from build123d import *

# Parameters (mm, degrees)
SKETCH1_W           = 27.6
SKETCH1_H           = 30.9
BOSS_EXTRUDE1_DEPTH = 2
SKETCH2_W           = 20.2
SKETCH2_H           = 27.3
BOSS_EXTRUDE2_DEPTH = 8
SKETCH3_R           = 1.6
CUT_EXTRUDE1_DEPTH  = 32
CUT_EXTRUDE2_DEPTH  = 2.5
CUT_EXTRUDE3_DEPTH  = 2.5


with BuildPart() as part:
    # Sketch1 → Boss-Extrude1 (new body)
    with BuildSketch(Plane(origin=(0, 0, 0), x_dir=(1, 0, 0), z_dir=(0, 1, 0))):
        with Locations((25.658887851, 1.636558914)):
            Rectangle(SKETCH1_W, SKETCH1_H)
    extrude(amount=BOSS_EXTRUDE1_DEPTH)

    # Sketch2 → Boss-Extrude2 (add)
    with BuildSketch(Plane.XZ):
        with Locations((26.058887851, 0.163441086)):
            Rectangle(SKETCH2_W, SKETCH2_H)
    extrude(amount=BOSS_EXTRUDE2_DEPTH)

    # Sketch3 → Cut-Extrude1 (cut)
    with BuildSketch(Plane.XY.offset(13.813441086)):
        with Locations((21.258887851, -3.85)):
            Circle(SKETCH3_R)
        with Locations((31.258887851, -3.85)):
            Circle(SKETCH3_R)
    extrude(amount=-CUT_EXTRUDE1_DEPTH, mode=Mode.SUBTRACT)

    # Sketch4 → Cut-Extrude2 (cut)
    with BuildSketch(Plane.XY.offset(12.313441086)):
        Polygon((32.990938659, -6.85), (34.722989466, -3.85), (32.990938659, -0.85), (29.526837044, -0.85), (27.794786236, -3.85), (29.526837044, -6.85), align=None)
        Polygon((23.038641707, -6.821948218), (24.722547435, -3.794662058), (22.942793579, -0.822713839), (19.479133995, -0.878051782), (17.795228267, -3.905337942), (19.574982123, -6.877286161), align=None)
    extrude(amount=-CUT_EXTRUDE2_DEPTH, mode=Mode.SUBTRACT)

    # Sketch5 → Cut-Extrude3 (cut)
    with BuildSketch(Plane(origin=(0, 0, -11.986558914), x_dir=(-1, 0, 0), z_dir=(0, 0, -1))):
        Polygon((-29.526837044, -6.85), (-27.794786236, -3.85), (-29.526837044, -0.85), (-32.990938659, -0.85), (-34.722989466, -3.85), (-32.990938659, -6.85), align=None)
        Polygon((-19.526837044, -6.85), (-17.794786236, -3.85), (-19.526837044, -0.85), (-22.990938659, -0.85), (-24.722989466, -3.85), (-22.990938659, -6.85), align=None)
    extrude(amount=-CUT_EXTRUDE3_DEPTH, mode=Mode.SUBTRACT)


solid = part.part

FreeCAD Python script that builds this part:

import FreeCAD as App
import Part
import Sketcher
Q = App.Units.Quantity


def add_polygon(sketch, points):
    """Adds a closed chain of lines whose ends are joined by coincident constraints."""
    first, n = sketch.GeometryCount, len(points)
    for a, b in zip(points, points[1:] + points[:1]):
        sketch.addGeometry(Part.LineSegment(App.Vector(*a, 0), App.Vector(*b, 0)), False)
    for i in range(n):
        sketch.addConstraint(Sketcher.Constraint("Coincident", first + i, 2, first + (i + 1) % n, 1))

doc = App.newDocument("Part")
params = doc.addObject("Spreadsheet::Sheet", "Params")
for row, (alias, value) in enumerate([
    ("sketch1_width", "27.6 mm"),
    ("sketch1_height", "30.9 mm"),
    ("pad1_length", "2 mm"),
    ("sketch2_width", "20.2 mm"),
    ("sketch2_height", "27.3 mm"),
    ("pad2_length", "8 mm"),
    ("sketch3_diameter", "3.2 mm"),
    ("pocket1_length", "32 mm"),
    ("pocket2_length", "2.5 mm"),
    ("pocket3_length", "2.5 mm"),
], start=1):
    params.set(f"A{row}", alias)
    params.set(f"B{row}", "=" + value)
    params.setAlias(f"B{row}", alias)

body = doc.addObject("PartDesign::Body", "Body")

# Sketch on XZ plane
sketch1 = doc.addObject("Sketcher::SketchObject", "Sketch")
body.addObject(sketch1)
sketch1.AttachmentSupport = (doc.XZ_Plane, [""])
sketch1.MapMode = "FlatFace"
add_polygon(sketch1, [(12, -17), (12, 14), (39, 14), (39, -17)])  # lines 0-3
sketch1.addConstraint([
    Sketcher.Constraint("Vertical", 0),
    Sketcher.Constraint("Horizontal", 1),
    Sketcher.Constraint("Vertical", 2),
    Sketcher.Constraint("Horizontal", 3),
    Sketcher.Constraint("DistanceX", 1, 1, 1, 2, 27.6),
    Sketcher.Constraint("DistanceY", 0, 1, 0, 2, 30.9),
    Sketcher.Constraint("DistanceY", -1, 1, 0, 2, 13.813441),
    Sketcher.Constraint("DistanceX", -1, 1, 0, 2, 11.858888),
])
sketch1.setExpression("Constraints[8]", "Params.sketch1_width")
sketch1.setExpression("Constraints[9]", "Params.sketch1_height")
pad1 = doc.addObject("PartDesign::Pad", "Pad")
body.addObject(pad1)
pad1.Profile = sketch1
pad1.setExpression("Length", "Params.pad1_length")
pad1.Reversed = True

# Sketch on XZ plane
sketch2 = doc.addObject("Sketcher::SketchObject", "Sketch001")
body.addObject(sketch2)
sketch2.AttachmentSupport = (doc.XZ_Plane, [""])
sketch2.MapMode = "FlatFace"
add_polygon(sketch2, [(16, 14), (16, -13), (36, -13), (36, 14)])  # lines 0-3
sketch2.addConstraint([
    Sketcher.Constraint("Vertical", 0),
    Sketcher.Constraint("Horizontal", 1),
    Sketcher.Constraint("Vertical", 2),
    Sketcher.Constraint("Horizontal", 3),
    Sketcher.Constraint("DistanceX", 1, 1, 1, 2, 20.2),
    Sketcher.Constraint("DistanceY", 0, 2, 0, 1, 27.3),
    Sketcher.Constraint("DistanceY", 0, 2, -1, 1, 13.486559),
    Sketcher.Constraint("DistanceX", -1, 1, 0, 2, 15.958888),
])
sketch2.setExpression("Constraints[8]", "Params.sketch2_width")
sketch2.setExpression("Constraints[9]", "Params.sketch2_height")
pad2 = doc.addObject("PartDesign::Pad", "Pad001")
body.addObject(pad2)
pad2.Profile = sketch2
pad2.setExpression("Length", "Params.pad2_length")

# Sketch on XY plane
sketch3 = doc.addObject("Sketcher::SketchObject", "Sketch002")
body.addObject(sketch3)
sketch3.AttachmentSupport = (doc.XY_Plane, [""])
sketch3.MapMode = "FlatFace"
sketch3.AttachmentOffset = App.Placement(App.Vector(0, 0, 13.813441), App.Rotation())
sketch3.addGeometry([
    Part.Circle(App.Vector(21.3, -3.9, 0), App.Vector(0, 0, 1), 1.6),
    Part.Circle(App.Vector(31.3, -3.9, 0), App.Vector(0, 0, 1), 1.6),
], False)
sketch3.addConstraint([
    Sketcher.Constraint("Equal", 0, 1),
    Sketcher.Constraint("Horizontal", 0, 3, 1, 3),
    Sketcher.Constraint("Diameter", 0, 3.2),
    Sketcher.Constraint("DistanceX", 0, 3, 1, 3, 10.0),
    Sketcher.Constraint("DistanceY", 0, 3, -1, 1, 3.85),
    Sketcher.Constraint("DistanceX", -1, 1, 0, 3, 21.258888),
])
sketch3.setExpression("Constraints[2]", "Params.sketch3_diameter")
pocket1 = doc.addObject("PartDesign::Pocket", "Pocket")
body.addObject(pocket1)
pocket1.Profile = sketch3
pocket1.setExpression("Length", "Params.pocket1_length")

# Sketch on XY plane
sketch4 = doc.addObject("Sketcher::SketchObject", "Sketch003")
body.addObject(sketch4)
sketch4.AttachmentSupport = (doc.XY_Plane, [""])
sketch4.MapMode = "FlatFace"
sketch4.AttachmentOffset = App.Placement(App.Vector(0, 0, 12.313441), App.Rotation())
add_polygon(sketch4, [(33, -6.8), (34.7, -3.9), (33, -0.8), (29.5, -0.8), (27.8, -3.9), (29.5, -6.8)])  # lines 0-5
add_polygon(sketch4, [(23, -6.8), (24.7, -3.8), (22.9, -0.8), (19.5, -0.9), (17.8, -3.9), (19.6, -6.9)])  # lines 6-11
sketch4.addConstraint([
    Sketcher.Constraint("Horizontal", 2),
    Sketcher.Constraint("Horizontal", 5),
    Sketcher.Constraint("Parallel", 0, 3),
    Sketcher.Constraint("Parallel", 1, 4),
    Sketcher.Constraint("Parallel", 6, 9),
    Sketcher.Constraint("Parallel", 7, 10),
    Sketcher.Constraint("Parallel", 8, 11),
    Sketcher.Constraint("Horizontal", 0, 2, 3, 2),
    Sketcher.Constraint("Vertical", 2, 2, 4, 2),
    Sketcher.Constraint("Vertical", 1, 2, 5, 2),
    Sketcher.Constraint("Equal", 4, 6),
    Sketcher.Constraint("Equal", 6, 7),
    Sketcher.Constraint("Equal", 7, 8),
    Sketcher.Constraint("Equal", 8, 9),
    Sketcher.Constraint("Angle", 0, Q("60 deg")),
    Sketcher.Constraint("DistanceY", 0, 2, 1, 2, 3.0),
    Sketcher.Constraint("DistanceY", 0, 2, -1, 1, 3.85),
    Sketcher.Constraint("DistanceX", 2, 2, 2, 1, 3.464102),
    Sketcher.Constraint("DistanceX", -1, 1, 0, 2, 34.722989),
    Sketcher.Constraint("DistanceY", 8, 2, -1, 1, 0.878052),
    Sketcher.Constraint("DistanceX", -1, 1, 9, 2, 17.795228),
    Sketcher.Constraint("DistanceX", -1, 1, 11, 2, 23.038642),
    Sketcher.Constraint("DistanceY", 11, 2, -1, 1, 6.821948),
    Sketcher.Constraint("DistanceX", 6, 2, 3, 2, 3.072239),
])
pocket2 = doc.addObject("PartDesign::Pocket", "Pocket001")
body.addObject(pocket2)
pocket2.Profile = sketch4
pocket2.setExpression("Length", "Params.pocket2_length")

# Sketch on XY plane
sketch5 = doc.addObject("Sketcher::SketchObject", "Sketch004")
body.addObject(sketch5)
sketch5.AttachmentSupport = (doc.XY_Plane, [""])
sketch5.MapMode = "FlatFace"
sketch5.AttachmentOffset = App.Placement(App.Vector(0, 0, -11.986559), App.Rotation())
add_polygon(sketch5, [(29.5, -6.8), (27.8, -3.9), (29.5, -0.8), (33, -0.8), (34.7, -3.9), (33, -6.8)])  # lines 0-5
add_polygon(sketch5, [(19.5, -6.8), (17.8, -3.9), (19.5, -0.8), (23, -0.8), (24.7, -3.9), (23, -6.8)])  # lines 6-11
sketch5.addConstraint([
    Sketcher.Constraint("Horizontal", 2),
    Sketcher.Constraint("Horizontal", 5),
    Sketcher.Constraint("Horizontal", 8),
    Sketcher.Constraint("Horizontal", 11),
    Sketcher.Constraint("Parallel", 0, 3),
    Sketcher.Constraint("Parallel", 1, 4),
    Sketcher.Constraint("Parallel", 3, 6),
    Sketcher.Constraint("Parallel", 4, 7),
    Sketcher.Constraint("Parallel", 6, 9),
    Sketcher.Constraint("Parallel", 7, 10),
    Sketcher.Constraint("Horizontal", 0, 2, 3, 2),
    Sketcher.Constraint("Horizontal", 3, 2, 6, 2),
    Sketcher.Constraint("Horizontal", 2, 2, 7, 2),
    Sketcher.Constraint("Horizontal", 6, 2, 9, 2),
    Sketcher.Constraint("Horizontal", 5, 2, 10, 2),
    Sketcher.Constraint("Vertical", 2, 2, 4, 2),
    Sketcher.Constraint("Vertical", 1, 2, 5, 2),
    Sketcher.Constraint("Equal", 5, 8),
    Sketcher.Constraint("Angle", 0, Q("120 deg")),
    Sketcher.Constraint("DistanceY", 0, 2, 1, 2, 3.0),
    Sketcher.Constraint("DistanceX", 6, 2, 0, 2, 10.0),
    Sketcher.Constraint("DistanceY", 0, 2, -1, 1, 3.85),
    Sketcher.Constraint("DistanceX", 2, 1, 2, 2, 3.464102),
    Sketcher.Constraint("DistanceX", -1, 1, 2, 2, 32.990939),
])
pocket3 = doc.addObject("PartDesign::Pocket", "Pocket002")
body.addObject(pocket3)
pocket3.Profile = sketch5
pocket3.setExpression("Length", "Params.pocket3_length")
pocket3.Reversed = True

doc.recompute()
